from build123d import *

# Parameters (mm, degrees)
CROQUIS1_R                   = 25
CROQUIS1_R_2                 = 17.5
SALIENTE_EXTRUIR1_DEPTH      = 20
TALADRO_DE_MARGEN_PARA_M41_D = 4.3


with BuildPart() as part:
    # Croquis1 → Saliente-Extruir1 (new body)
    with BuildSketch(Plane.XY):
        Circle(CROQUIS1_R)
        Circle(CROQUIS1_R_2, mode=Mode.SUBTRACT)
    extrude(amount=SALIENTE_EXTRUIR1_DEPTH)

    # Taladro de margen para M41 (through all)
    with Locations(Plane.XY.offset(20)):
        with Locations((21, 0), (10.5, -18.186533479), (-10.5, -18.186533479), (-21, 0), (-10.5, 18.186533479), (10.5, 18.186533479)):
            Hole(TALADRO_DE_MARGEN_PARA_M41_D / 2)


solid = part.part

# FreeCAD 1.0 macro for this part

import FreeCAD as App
import Part
import Sketcher
Q = App.Units.Quantity

doc = App.newDocument("Part")
body = doc.addObject("PartDesign::Body", "Body")

# Sketch on XY plane
sketch1 = body.newObject("Sketcher::SketchObject", "Sketch")
sketch1.AttachmentSupport = (doc.getObject("XY_Plane"), [""])
sketch1.MapMode = "FlatFace"
sketch1.addGeometry([
    Part.Circle(App.Vector(0, 0, 0), App.Vector(0, 0, 1), 25),
    Part.Circle(App.Vector(0, 0, 0), App.Vector(0, 0, 1), 18),
], False)
sketch1.addConstraint([
    Sketcher.Constraint("Coincident", 0, 3, -1, 1),
    Sketcher.Constraint("Coincident", 1, 3, -1, 1),
    Sketcher.Constraint("Diameter", 0, Q("50 mm")),
    Sketcher.Constraint("Diameter", 1, Q("35 mm")),
])
pad1 = body.newObject("PartDesign::Pad", "Pad")
pad1.Profile = sketch1
pad1.Length = 20

# Sketch on XY plane
sketch2 = body.newObject("Sketcher::SketchObject", "Sketch001")
sketch2.AttachmentSupport = (doc.getObject("XY_Plane"), [""])
sketch2.MapMode = "FlatFace"
sketch2.AttachmentOffset = App.Placement(App.Vector(0, 0, 20), App.Rotation())
sketch2.addGeometry([
    Part.Circle(App.Vector(21, 0, 0), App.Vector(0, 0, 1), 2.1),  # 0
    Part.Circle(App.Vector(10.5, -18.2, 0), App.Vector(0, 0, 1), 2.1),  # 1
    Part.Circle(App.Vector(-10.5, -18.2, 0), App.Vector(0, 0, 1), 2.1),  # 2
    Part.Circle(App.Vector(-21, 0, 0), App.Vector(0, 0, 1), 2.1),  # 3
    Part.Circle(App.Vector(-10.5, 18.2, 0), App.Vector(0, 0, 1), 2.1),  # 4
    Part.Circle(App.Vector(10.5, 18.2, 0), App.Vector(0, 0, 1), 2.1),  # 5
], False)
sketch2.addConstraint([
    Sketcher.Constraint("Equal", 0, 1),
    Sketcher.Constraint("Equal", 1, 2),
    Sketcher.Constraint("Equal", 2, 3),
    Sketcher.Constraint("Equal", 3, 4),
    Sketcher.Constraint("Equal", 4, 5),
    Sketcher.Constraint("Symmetric", 0, 3, 3, 3, -1, 1),
    Sketcher.Constraint("Symmetric", 1, 3, 4, 3, -1, 1),
    Sketcher.Constraint("Symmetric", 2, 3, 5, 3, -1, 1),
    Sketcher.Constraint("Symmetric", 1, 3, 2, 3, -2),
    Sketcher.Constraint("PointOnObject", 0, 3, -1),
    Sketcher.Constraint("Diameter", 0, Q("4.3 mm")),
    Sketcher.Constraint("DistanceX", -1, 1, 0, 3, Q("21 mm")),
    Sketcher.Constraint("DistanceX", 2, 3, 1, 3, Q("21 mm")),
    Sketcher.Constraint("DistanceY", 1, 3, -1, 1, Q("18.186533 mm")),
])
doc.recompute()
hole = body.newObject("PartDesign::Hole", "Hole")
hole.Profile = sketch2
hole.ThreadType = "None"
hole.Diameter = 4.3
hole.DepthType = "ThroughAll"

doc.recompute()
